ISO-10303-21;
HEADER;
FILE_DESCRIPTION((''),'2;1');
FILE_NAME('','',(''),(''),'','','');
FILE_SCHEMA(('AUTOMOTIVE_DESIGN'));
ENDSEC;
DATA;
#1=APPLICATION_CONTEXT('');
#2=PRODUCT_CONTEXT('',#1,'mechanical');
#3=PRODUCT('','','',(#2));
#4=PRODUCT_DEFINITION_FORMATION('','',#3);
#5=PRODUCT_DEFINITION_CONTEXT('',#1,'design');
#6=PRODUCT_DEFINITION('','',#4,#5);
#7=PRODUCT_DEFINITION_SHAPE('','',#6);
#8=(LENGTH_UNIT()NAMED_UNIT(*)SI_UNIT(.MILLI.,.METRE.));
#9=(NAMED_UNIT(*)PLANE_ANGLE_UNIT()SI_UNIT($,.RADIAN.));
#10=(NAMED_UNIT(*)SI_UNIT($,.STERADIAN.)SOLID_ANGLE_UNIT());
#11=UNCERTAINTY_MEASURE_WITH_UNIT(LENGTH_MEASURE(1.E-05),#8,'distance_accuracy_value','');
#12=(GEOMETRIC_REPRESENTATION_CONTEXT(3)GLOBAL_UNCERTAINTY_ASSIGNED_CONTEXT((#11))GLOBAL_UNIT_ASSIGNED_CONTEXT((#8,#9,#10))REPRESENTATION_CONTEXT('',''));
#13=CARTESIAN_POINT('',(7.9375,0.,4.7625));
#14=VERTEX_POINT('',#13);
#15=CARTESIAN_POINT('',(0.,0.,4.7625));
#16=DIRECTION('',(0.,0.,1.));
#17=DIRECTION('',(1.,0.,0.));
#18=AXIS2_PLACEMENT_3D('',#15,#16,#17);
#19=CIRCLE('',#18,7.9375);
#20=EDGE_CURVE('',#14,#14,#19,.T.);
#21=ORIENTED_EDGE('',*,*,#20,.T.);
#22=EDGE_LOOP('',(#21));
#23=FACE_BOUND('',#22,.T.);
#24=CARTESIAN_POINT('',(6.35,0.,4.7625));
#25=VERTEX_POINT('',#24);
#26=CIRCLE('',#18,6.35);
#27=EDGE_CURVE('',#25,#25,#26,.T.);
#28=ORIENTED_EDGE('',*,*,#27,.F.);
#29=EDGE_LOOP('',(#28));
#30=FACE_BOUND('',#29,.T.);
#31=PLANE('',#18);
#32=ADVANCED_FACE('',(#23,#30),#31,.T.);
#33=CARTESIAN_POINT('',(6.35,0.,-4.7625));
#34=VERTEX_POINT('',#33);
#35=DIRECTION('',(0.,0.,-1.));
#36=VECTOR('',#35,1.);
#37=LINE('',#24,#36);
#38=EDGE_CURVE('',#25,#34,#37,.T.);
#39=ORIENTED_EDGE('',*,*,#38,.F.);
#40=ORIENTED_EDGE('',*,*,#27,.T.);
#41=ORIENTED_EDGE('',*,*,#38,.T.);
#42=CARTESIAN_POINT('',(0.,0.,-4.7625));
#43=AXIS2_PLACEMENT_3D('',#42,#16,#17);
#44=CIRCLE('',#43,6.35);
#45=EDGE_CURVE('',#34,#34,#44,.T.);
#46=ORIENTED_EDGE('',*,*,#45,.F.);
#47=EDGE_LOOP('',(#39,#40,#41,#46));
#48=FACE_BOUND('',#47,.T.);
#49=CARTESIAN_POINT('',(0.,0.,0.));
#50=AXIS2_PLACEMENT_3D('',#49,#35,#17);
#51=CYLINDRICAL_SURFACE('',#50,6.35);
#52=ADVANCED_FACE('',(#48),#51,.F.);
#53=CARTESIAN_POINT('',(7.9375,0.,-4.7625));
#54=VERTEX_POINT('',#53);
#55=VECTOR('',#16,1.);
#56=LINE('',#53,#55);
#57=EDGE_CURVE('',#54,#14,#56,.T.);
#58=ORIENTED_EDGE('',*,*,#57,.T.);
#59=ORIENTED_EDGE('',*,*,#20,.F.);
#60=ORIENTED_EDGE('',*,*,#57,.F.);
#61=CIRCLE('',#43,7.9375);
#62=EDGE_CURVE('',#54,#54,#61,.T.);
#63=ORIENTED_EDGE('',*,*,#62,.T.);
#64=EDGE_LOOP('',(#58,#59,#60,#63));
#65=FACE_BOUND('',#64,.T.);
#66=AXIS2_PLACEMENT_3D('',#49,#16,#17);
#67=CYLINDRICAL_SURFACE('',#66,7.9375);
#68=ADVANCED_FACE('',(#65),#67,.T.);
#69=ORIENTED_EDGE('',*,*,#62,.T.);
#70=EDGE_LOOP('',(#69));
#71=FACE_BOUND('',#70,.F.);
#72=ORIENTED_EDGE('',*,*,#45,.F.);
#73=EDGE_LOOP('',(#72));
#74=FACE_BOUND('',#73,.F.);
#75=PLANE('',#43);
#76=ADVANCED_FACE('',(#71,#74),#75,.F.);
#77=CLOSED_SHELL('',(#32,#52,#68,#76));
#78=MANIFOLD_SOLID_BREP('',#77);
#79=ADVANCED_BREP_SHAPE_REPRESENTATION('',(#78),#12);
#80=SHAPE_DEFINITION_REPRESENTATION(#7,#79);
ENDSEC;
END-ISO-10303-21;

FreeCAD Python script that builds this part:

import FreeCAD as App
import Part
import Sketcher
Q = App.Units.Quantity

doc = App.newDocument("Part")
body = doc.addObject("PartDesign::Body", "Body")

# Sketch on XY plane
sketch1 = doc.addObject("Sketcher::SketchObject", "Sketch")
body.addObject(sketch1)
sketch1.AttachmentSupport = (doc.XY_Plane, [""])
sketch1.MapMode = "FlatFace"
sketch1.addGeometry([
    Part.Circle(App.Vector(0, 0, 0), App.Vector(0, 0, 1), 8),
    Part.Circle(App.Vector(0, 0, 0), App.Vector(0, 0, 1), 6),
], False)
sketch1.addConstraint([
    Sketcher.Constraint("Coincident", 0, 3, -1, 1),
    Sketcher.Constraint("Coincident", 1, 3, -1, 1),
    Sketcher.Constraint("Diameter", 1, Q("0.5 in")),
    Sketcher.Constraint("Diameter", 0, Q("0.625 in")),
])
pad1 = doc.addObject("PartDesign::Pad", "Pad")
body.addObject(pad1)
pad1.Profile = sketch1
pad1.Length = Q("0.375 in")
pad1.Midplane = True

doc.recompute()
